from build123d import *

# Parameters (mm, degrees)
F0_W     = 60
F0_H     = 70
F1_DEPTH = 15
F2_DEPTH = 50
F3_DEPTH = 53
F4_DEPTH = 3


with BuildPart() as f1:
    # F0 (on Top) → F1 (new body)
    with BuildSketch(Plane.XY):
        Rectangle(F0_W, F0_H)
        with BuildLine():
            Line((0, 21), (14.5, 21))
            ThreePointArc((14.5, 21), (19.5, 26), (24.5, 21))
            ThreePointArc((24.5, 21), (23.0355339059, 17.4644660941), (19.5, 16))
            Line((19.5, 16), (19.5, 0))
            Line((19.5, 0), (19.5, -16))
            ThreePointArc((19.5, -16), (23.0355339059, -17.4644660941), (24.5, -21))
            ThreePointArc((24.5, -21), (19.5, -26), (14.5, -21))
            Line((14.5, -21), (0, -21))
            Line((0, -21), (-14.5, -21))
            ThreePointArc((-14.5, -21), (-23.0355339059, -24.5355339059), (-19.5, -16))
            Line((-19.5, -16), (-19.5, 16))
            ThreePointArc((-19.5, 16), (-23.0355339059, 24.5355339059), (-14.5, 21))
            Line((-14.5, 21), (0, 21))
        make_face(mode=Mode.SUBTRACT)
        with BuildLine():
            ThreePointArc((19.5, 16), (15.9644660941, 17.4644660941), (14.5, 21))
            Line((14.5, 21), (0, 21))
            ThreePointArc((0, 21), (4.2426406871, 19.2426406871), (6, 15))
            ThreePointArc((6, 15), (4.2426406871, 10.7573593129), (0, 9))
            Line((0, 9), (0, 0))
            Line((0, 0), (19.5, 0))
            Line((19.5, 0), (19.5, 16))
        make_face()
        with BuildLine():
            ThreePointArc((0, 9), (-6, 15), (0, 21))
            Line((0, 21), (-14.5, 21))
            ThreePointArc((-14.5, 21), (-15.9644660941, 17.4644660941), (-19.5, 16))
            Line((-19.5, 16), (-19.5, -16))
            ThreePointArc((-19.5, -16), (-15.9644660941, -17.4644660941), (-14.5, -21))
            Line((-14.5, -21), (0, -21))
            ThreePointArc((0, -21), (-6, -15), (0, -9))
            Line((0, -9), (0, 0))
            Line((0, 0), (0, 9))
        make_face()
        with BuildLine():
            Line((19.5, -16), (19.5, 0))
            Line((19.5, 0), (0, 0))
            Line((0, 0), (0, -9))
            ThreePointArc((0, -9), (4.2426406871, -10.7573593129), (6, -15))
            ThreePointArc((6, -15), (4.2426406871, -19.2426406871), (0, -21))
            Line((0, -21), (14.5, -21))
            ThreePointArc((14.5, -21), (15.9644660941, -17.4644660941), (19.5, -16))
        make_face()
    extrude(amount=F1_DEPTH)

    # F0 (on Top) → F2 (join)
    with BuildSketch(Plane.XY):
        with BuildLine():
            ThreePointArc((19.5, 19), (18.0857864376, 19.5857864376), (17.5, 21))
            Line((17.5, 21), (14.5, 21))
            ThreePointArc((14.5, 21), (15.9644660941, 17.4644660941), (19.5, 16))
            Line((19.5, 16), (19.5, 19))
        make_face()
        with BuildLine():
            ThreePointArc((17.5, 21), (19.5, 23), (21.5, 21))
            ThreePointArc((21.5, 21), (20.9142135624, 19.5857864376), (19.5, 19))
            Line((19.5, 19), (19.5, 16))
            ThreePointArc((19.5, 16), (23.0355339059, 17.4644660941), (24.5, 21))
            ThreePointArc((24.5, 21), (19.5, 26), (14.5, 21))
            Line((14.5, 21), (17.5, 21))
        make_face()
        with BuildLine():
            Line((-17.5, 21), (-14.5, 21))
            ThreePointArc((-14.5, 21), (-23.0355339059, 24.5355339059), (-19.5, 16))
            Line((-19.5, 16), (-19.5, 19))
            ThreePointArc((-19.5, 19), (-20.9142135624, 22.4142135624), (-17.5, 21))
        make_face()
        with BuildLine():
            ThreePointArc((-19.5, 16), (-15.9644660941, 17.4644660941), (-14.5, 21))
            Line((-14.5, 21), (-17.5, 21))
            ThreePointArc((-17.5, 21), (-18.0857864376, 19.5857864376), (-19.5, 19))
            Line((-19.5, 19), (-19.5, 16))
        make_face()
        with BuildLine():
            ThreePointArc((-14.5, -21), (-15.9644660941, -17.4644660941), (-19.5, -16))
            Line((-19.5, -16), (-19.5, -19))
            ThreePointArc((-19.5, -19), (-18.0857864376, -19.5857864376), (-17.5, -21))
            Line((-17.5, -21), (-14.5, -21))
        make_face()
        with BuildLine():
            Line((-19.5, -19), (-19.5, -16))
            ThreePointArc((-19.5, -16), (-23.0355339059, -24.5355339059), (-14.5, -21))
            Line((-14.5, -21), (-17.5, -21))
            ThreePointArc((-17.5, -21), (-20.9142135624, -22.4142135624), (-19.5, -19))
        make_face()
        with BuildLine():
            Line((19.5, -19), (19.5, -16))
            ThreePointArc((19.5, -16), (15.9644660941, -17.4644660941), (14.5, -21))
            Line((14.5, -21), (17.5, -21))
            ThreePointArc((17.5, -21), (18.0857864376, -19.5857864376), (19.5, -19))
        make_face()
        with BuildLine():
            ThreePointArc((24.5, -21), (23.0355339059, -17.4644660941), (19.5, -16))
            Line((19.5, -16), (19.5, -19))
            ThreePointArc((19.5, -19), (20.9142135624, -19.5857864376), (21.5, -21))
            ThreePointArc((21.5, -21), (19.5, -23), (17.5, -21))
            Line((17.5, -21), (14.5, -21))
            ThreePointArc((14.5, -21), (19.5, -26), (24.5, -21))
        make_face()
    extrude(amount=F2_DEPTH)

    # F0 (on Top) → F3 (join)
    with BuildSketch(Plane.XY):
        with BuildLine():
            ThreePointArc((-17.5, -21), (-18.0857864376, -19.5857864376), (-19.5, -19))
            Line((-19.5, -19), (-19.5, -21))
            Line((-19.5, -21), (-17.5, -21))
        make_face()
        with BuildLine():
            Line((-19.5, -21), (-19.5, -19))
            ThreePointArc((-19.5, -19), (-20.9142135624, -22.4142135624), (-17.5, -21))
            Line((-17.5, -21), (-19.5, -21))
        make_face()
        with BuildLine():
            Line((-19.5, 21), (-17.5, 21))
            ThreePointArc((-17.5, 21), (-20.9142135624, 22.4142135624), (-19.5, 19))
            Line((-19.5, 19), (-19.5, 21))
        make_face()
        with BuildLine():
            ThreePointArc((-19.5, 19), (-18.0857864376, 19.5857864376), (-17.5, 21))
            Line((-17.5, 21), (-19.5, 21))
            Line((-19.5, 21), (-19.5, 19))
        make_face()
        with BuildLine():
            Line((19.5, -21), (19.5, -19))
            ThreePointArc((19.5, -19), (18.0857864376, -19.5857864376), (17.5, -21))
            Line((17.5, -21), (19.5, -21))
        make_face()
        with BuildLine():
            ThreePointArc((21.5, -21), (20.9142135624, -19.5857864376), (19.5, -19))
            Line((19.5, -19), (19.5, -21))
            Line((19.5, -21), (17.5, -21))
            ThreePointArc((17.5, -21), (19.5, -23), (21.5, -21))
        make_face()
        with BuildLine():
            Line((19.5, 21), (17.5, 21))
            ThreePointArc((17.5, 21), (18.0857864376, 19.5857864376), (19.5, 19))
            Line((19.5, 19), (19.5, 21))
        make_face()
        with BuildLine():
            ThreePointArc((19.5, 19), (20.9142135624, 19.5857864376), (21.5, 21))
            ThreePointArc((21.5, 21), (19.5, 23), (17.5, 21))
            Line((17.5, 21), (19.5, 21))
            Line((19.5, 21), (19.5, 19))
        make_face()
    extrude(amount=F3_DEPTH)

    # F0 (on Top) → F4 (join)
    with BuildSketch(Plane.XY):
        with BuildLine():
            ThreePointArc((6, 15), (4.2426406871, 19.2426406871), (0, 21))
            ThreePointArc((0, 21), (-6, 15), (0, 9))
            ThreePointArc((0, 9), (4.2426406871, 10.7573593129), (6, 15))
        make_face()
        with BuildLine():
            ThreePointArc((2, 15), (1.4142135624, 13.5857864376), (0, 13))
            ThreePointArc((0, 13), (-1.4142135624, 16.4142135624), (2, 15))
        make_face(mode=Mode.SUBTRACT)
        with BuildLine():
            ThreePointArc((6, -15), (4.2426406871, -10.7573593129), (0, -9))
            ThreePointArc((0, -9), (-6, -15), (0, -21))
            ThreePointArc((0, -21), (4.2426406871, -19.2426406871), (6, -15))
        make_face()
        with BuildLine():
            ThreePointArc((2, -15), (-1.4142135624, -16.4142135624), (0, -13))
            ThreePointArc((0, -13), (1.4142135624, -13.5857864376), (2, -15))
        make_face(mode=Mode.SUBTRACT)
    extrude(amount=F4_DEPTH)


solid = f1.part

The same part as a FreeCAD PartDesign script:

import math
import FreeCAD as App
import Part
import Sketcher
from FreeCAD import Vector


def add_polygon(sketch, points):
    """Adds a closed chain of lines whose ends are joined by coincident constraints."""
    first, n = sketch.GeometryCount, len(points)
    for a, b in zip(points, points[1:] + points[:1]):
        sketch.addGeometry(Part.LineSegment(App.Vector(*a, 0), App.Vector(*b, 0)), False)
    for i in range(n):
        sketch.addConstraint(Sketcher.Constraint("Coincident", first + i, 2, first + (i + 1) % n, 1))

doc = App.newDocument("Part")
body = doc.addObject("PartDesign::Body", "Body")

# Sketch on XY plane
sketch1 = body.newObject("Sketcher::SketchObject", "Sketch")
sketch1.AttachmentSupport = (doc.getObject("XY_Plane"), [""])
sketch1.MapMode = "FlatFace"
add_polygon(sketch1, [(-30, 35), (-30, -35), (30, -35), (30, 35)])  # lines 0-3
sketch1.addGeometry(Part.ArcOfCircle(Part.Circle(Vector(0, 15, 0), Vector(0, 0, 1), 6), math.radians(0), math.radians(90)), False)  # 4
sketch1.addGeometry(Part.ArcOfCircle(Part.Circle(Vector(0, 15, 0), Vector(0, 0, 1), 6), math.radians(-90), math.radians(0)), False)  # 5
sketch1.addGeometry(Part.ArcOfCircle(Part.Circle(Vector(0, 15, 0), Vector(0, 0, 1), 6), math.radians(90), math.radians(270)), False)  # 6
sketch1.addGeometry(Part.ArcOfCircle(Part.Circle(Vector(20, -21, 0), Vector(0, 0, 1), 5), math.radians(0), math.radians(90)), False)  # 7
sketch1.addGeometry(Part.ArcOfCircle(Part.Circle(Vector(20, -21, 0), Vector(0, 0, 1), 5), math.radians(180), math.radians(360)), False)  # 8
sketch1.addGeometry(Part.ArcOfCircle(Part.Circle(Vector(20, -21, 0), Vector(0, 0, 1), 5), math.radians(90), math.radians(180)), False)  # 9
sketch1.addGeometry(Part.ArcOfCircle(Part.Circle(Vector(0, -15, 0), Vector(0, 0, 1), 6), math.radians(90), math.radians(270)), False)  # 10
sketch1.addGeometry(Part.ArcOfCircle(Part.Circle(Vector(0, -15, 0), Vector(0, 0, 1), 6), math.radians(0), math.radians(90)), False)  # 11
sketch1.addGeometry(Part.ArcOfCircle(Part.Circle(Vector(0, -15, 0), Vector(0, 0, 1), 6), math.radians(-90), math.radians(0)), False)  # 12
sketch1.addGeometry(Part.ArcOfCircle(Part.Circle(Vector(-20, -21, 0), Vector(0, 0, 1), 5), math.radians(90), math.radians(360)), False)  # 13
sketch1.addGeometry(Part.ArcOfCircle(Part.Circle(Vector(-20, -21, 0), Vector(0, 0, 1), 5), math.radians(0), math.radians(90)), False)  # 14
sketch1.addGeometry(Part.ArcOfCircle(Part.Circle(Vector(-20, 21, 0), Vector(0, 0, 1), 5), math.radians(0), math.radians(270)), False)  # 15
sketch1.addGeometry(Part.ArcOfCircle(Part.Circle(Vector(-20, 21, 0), Vector(0, 0, 1), 5), math.radians(-90), math.radians(0)), False)  # 16
sketch1.addGeometry(Part.ArcOfCircle(Part.Circle(Vector(20, 21, 0), Vector(0, 0, 1), 5), math.radians(-90), math.radians(0)), False)  # 17
sketch1.addGeometry(Part.ArcOfCircle(Part.Circle(Vector(20, 21, 0), Vector(0, 0, 1), 5), math.radians(180), math.radians(270)), False)  # 18
sketch1.addGeometry(Part.ArcOfCircle(Part.Circle(Vector(20, 21, 0), Vector(0, 0, 1), 5), math.radians(0), math.radians(180)), False)  # 19
sketch1.addConstraint([
    Sketcher.Constraint("Tangent", 4, 1, 5, 2),
    Sketcher.Constraint("Tangent", 5, 1, 6, 2),
    Sketcher.Constraint("Tangent", 6, 1, 4, 2),
    Sketcher.Constraint("Tangent", 7, 1, 8, 2),
    Sketcher.Constraint("Tangent", 8, 1, 9, 2),
    Sketcher.Constraint("Tangent", 9, 1, 7, 2),
    Sketcher.Constraint("Tangent", 10, 1, 11, 2),
    Sketcher.Constraint("Tangent", 11, 1, 12, 2),
    Sketcher.Constraint("Tangent", 12, 1, 10, 2),
    Sketcher.Constraint("Tangent", 13, 1, 14, 2),
    Sketcher.Constraint("Coincident", 14, 1, 13, 2),
    Sketcher.Constraint("Tangent", 15, 1, 16, 2),
    Sketcher.Constraint("Coincident", 16, 1, 15, 2),
    Sketcher.Constraint("Tangent", 17, 1, 18, 2),
    Sketcher.Constraint("Tangent", 18, 1, 19, 2),
    Sketcher.Constraint("Tangent", 19, 1, 17, 2),
    Sketcher.Constraint("Vertical", 0),
    Sketcher.Constraint("Horizontal", 1),
    Sketcher.Constraint("Vertical", 2),
    Sketcher.Constraint("Horizontal", 3),
    Sketcher.Constraint("Equal", 6, 10),
    Sketcher.Constraint("Equal", 9, 13),
    Sketcher.Constraint("Equal", 14, 15),
    Sketcher.Constraint("Equal", 16, 17),
    Sketcher.Constraint("Symmetric", 4, 3, 10, 3, -1, 1),
    Sketcher.Constraint("Symmetric", 7, 3, 15, 3, -1, 1),
    Sketcher.Constraint("Symmetric", 13, 3, 17, 3, -1, 1),
    Sketcher.Constraint("Symmetric", 0, 2, 2, 2, -1, 1),
    Sketcher.Constraint("Symmetric", 7, 3, 13, 3, -2),
    Sketcher.Constraint("Symmetric", 4, 1, 11, 1, -1),
    Sketcher.Constraint("PointOnObject", 5, 1, -2),
    Sketcher.Constraint("PointOnObject", 6, 1, -2),
    Sketcher.Constraint("PointOnObject", 10, 1, -2),
    Sketcher.Constraint("PointOnObject", 12, 1, -2),
    Sketcher.Constraint("Horizontal", 6, 3, 4, 1),
    Sketcher.Constraint("Horizontal", 19, 3, 6, 1),
    Sketcher.Constraint("Horizontal", 14, 3, 7, 1),
    Sketcher.Constraint("Horizontal", 7, 1, 8, 1),
    Sketcher.Constraint("Horizontal", 12, 1, 14, 1),
    Sketcher.Constraint("Horizontal", 6, 1, 15, 1),
    Sketcher.Constraint("Horizontal", 15, 1, 18, 1),
    Sketcher.Constraint("Horizontal", 18, 1, 19, 1),
    Sketcher.Constraint("Vertical", 19, 3, 9, 1),
    Sketcher.Constraint("Vertical", 16, 3, 13, 1),
    Sketcher.Constraint("Vertical", 13, 1, 16, 1),
    Sketcher.Constraint("Vertical", 9, 1, 17, 1),
    Sketcher.Constraint("Radius", 4, 6.0),
    Sketcher.Constraint("Radius", 7, 5.0),
    Sketcher.Constraint("DistanceX", 1, 1, 1, 2, 60.0),
    Sketcher.Constraint("DistanceY", 0, 2, 0, 1, 70.0),
    Sketcher.Constraint("DistanceY", -1, 1, 4, 3, 15.0),
    Sketcher.Constraint("DistanceX", 13, 3, 7, 3, 39.0),
])
pad1 = body.newObject("PartDesign::Pad", "Pad")
pad1.Profile = sketch1
pad1.Length = 15

# Sketch on XY plane
sketch2 = body.newObject("Sketcher::SketchObject", "Sketch001")
sketch2.AttachmentSupport = (doc.getObject("XY_Plane"), [""])
sketch2.MapMode = "FlatFace"
sketch2.addGeometry([
    Part.ArcOfCircle(Part.Circle(Vector(19.5, 21, 0), Vector(0, 0, 1), 5), math.radians(180), math.radians(270)),  # 0
    Part.ArcOfCircle(Part.Circle(Vector(19.5, 21, 0), Vector(0, 0, 1), 5), math.radians(-90), math.radians(0)),  # 1
    Part.ArcOfCircle(Part.Circle(Vector(19.5, 21, 0), Vector(0, 0, 1), 5), math.radians(0), math.radians(180)),  # 2
    Part.ArcOfCircle(Part.Circle(Vector(19.5, 21, 0), Vector(0, 0, 1), 2), math.radians(180), math.radians(270)),  # 3
    Part.ArcOfCircle(Part.Circle(Vector(19.5, 21, 0), Vector(0, 0, 1), 2), math.radians(0), math.radians(180)),  # 4
    Part.ArcOfCircle(Part.Circle(Vector(19.5, 21, 0), Vector(0, 0, 1), 2), math.radians(-90), math.radians(0)),  # 5
    Part.ArcOfCircle(Part.Circle(Vector(-19.5, 21, 0), Vector(0, 0, 1), 5), math.radians(0), math.radians(270)),  # 6
    Part.ArcOfCircle(Part.Circle(Vector(-19.5, 21, 0), Vector(0, 0, 1), 5), math.radians(-90), math.radians(0)),  # 7
    Part.ArcOfCircle(Part.Circle(Vector(-19.5, 21, 0), Vector(0, 0, 1), 2), math.radians(0), math.radians(270)),  # 8
    Part.ArcOfCircle(Part.Circle(Vector(-19.5, 21, 0), Vector(0, 0, 1), 2), math.radians(-90), math.radians(0)),  # 9
    Part.ArcOfCircle(Part.Circle(Vector(-19.5, -21, 0), Vector(0, 0, 1), 5), math.radians(0), math.radians(90)),  # 10
    Part.ArcOfCircle(Part.Circle(Vector(-19.5, -21, 0), Vector(0, 0, 1), 5), math.radians(90), math.radians(360)),  # 11
    Part.ArcOfCircle(Part.Circle(Vector(-19.5, -21, 0), Vector(0, 0, 1), 2), math.radians(0), math.radians(90)),  # 12
    Part.ArcOfCircle(Part.Circle(Vector(-19.5, -21, 0), Vector(0, 0, 1), 2), math.radians(90), math.radians(360)),  # 13
    Part.ArcOfCircle(Part.Circle(Vector(19.5, -21, 0), Vector(0, 0, 1), 5), math.radians(90), math.radians(180)),  # 14
    Part.ArcOfCircle(Part.Circle(Vector(19.5, -21, 0), Vector(0, 0, 1), 5), math.radians(180), math.radians(360)),  # 15
    Part.ArcOfCircle(Part.Circle(Vector(19.5, -21, 0), Vector(0, 0, 1), 5), math.radians(0), math.radians(90)),  # 16
    Part.ArcOfCircle(Part.Circle(Vector(19.5, -21, 0), Vector(0, 0, 1), 2), math.radians(90), math.radians(180)),  # 17
    Part.ArcOfCircle(Part.Circle(Vector(19.5, -21, 0), Vector(0, 0, 1), 2), math.radians(0), math.radians(90)),  # 18
    Part.ArcOfCircle(Part.Circle(Vector(19.5, -21, 0), Vector(0, 0, 1), 2), math.radians(180), math.radians(360)),  # 19
], False)
sketch2.addConstraint([
    Sketcher.Constraint("Tangent", 0, 2, 1, 1),
    Sketcher.Constraint("Tangent", 1, 2, 2, 1),
    Sketcher.Constraint("Tangent", 2, 2, 0, 1),
    Sketcher.Constraint("Tangent", 3, 1, 4, 2),
    Sketcher.Constraint("Tangent", 4, 1, 5, 2),
    Sketcher.Constraint("Tangent", 5, 1, 3, 2),
    Sketcher.Constraint("Tangent", 6, 1, 7, 2),
    Sketcher.Constraint("Coincident", 7, 1, 6, 2),
    Sketcher.Constraint("Tangent", 8, 1, 9, 2),
    Sketcher.Constraint("Coincident", 9, 1, 8, 2),
    Sketcher.Constraint("Tangent", 10, 1, 11, 2),
    Sketcher.Constraint("Coincident", 11, 1, 10, 2),
    Sketcher.Constraint("Tangent", 12, 1, 13, 2),
    Sketcher.Constraint("Coincident", 13, 1, 12, 2),
    Sketcher.Constraint("Tangent", 14, 2, 15, 1),
    Sketcher.Constraint("Tangent", 15, 2, 16, 1),
    Sketcher.Constraint("Tangent", 16, 2, 14, 1),
    Sketcher.Constraint("Tangent", 17, 1, 18, 2),
    Sketcher.Constraint("Tangent", 18, 1, 19, 2),
    Sketcher.Constraint("Tangent", 19, 1, 17, 2),
    Sketcher.Constraint("Coincident", 3, 3, 0, 3),
    Sketcher.Constraint("Coincident", 8, 3, 6, 3),
    Sketcher.Constraint("Coincident", 12, 3, 10, 3),
    Sketcher.Constraint("Coincident", 17, 3, 14, 3),
    Sketcher.Constraint("Equal", 2, 6),
    Sketcher.Constraint("Equal", 5, 8),
    Sketcher.Constraint("Equal", 7, 10),
    Sketcher.Constraint("Equal", 9, 12),
    Sketcher.Constraint("Equal", 11, 14),
    Sketcher.Constraint("Equal", 13, 17),
    Sketcher.Constraint("Symmetric", 0, 3, 10, 3, -1, 1),
    Sketcher.Constraint("Symmetric", 6, 3, 14, 3, -1, 1),
    Sketcher.Constraint("Symmetric", 0, 3, 6, 3, -2),
    Sketcher.Constraint("Horizontal", 9, 3, 1, 2),
    Sketcher.Constraint("Horizontal", 1, 2, 2, 2),
    Sketcher.Constraint("Horizontal", 2, 2, 3, 1),
    Sketcher.Constraint("Horizontal", 3, 1, 4, 1),
    Sketcher.Constraint("Horizontal", 4, 1, 6, 1),
    Sketcher.Constraint("Horizontal", 6, 1, 8, 1),
    Sketcher.Constraint("Horizontal", 19, 3, 10, 1),
    Sketcher.Constraint("Horizontal", 10, 1, 12, 1),
    Sketcher.Constraint("Horizontal", 12, 1, 14, 2),
    Sketcher.Constraint("Horizontal", 14, 2, 15, 2),
    Sketcher.Constraint("Horizontal", 15, 2, 18, 1),
    Sketcher.Constraint("Horizontal", 18, 1, 19, 1),
    Sketcher.Constraint("Vertical", 19, 3, 0, 2),
    Sketcher.Constraint("Vertical", 0, 2, 5, 1),
    Sketcher.Constraint("Vertical", 13, 3, 7, 1),
    Sketcher.Constraint("Vertical", 7, 1, 9, 1),
    Sketcher.Constraint("Vertical", 9, 1, 11, 1),
    Sketcher.Constraint("Vertical", 11, 1, 13, 1),
    Sketcher.Constraint("Vertical", 5, 1, 16, 2),
    Sketcher.Constraint("Vertical", 16, 2, 17, 1),
    Sketcher.Constraint("Radius", 0, 5.0),
    Sketcher.Constraint("Radius", 3, 2.0),
    Sketcher.Constraint("DistanceY", -1, 1, 0, 3, 21.0),
    Sketcher.Constraint("DistanceX", 6, 3, 0, 3, 39.0),
])
pad2 = body.newObject("PartDesign::Pad", "Pad001")
pad2.Profile = sketch2
pad2.Length = 50

# Sketch on XY plane
sketch3 = body.newObject("Sketcher::SketchObject", "Sketch002")
sketch3.AttachmentSupport = (doc.getObject("XY_Plane"), [""])
sketch3.MapMode = "FlatFace"
sketch3.addGeometry([
    Part.ArcOfCircle(Part.Circle(Vector(-19.5, -21, 0), Vector(0, 0, 1), 2), math.radians(0), math.radians(90)),  # 0
    Part.ArcOfCircle(Part.Circle(Vector(-19.5, -21, 0), Vector(0, 0, 1), 2), math.radians(90), math.radians(360)),  # 1
    Part.ArcOfCircle(Part.Circle(Vector(-19.5, 21, 0), Vector(0, 0, 1), 2), math.radians(0), math.radians(270)),  # 2
    Part.ArcOfCircle(Part.Circle(Vector(-19.5, 21, 0), Vector(0, 0, 1), 2), math.radians(-90), math.radians(0)),  # 3
    Part.ArcOfCircle(Part.Circle(Vector(19.5, -21, 0), Vector(0, 0, 1), 2), math.radians(90), math.radians(180)),  # 4
    Part.ArcOfCircle(Part.Circle(Vector(19.5, -21, 0), Vector(0, 0, 1), 2), math.radians(180), math.radians(360)),  # 5
    Part.ArcOfCircle(Part.Circle(Vector(19.5, -21, 0), Vector(0, 0, 1), 2), math.radians(0), math.radians(90)),  # 6
    Part.ArcOfCircle(Part.Circle(Vector(19.5, 21, 0), Vector(0, 0, 1), 2), math.radians(180), math.radians(270)),  # 7
    Part.ArcOfCircle(Part.Circle(Vector(19.5, 21, 0), Vector(0, 0, 1), 2), math.radians(-90), math.radians(0)),  # 8
    Part.ArcOfCircle(Part.Circle(Vector(19.5, 21, 0), Vector(0, 0, 1), 2), math.radians(0), math.radians(180)),  # 9
], False)
sketch3.addConstraint([
    Sketcher.Constraint("Tangent", 0, 1, 1, 2),
    Sketcher.Constraint("Coincident", 1, 1, 0, 2),
    Sketcher.Constraint("Tangent", 2, 1, 3, 2),
    Sketcher.Constraint("Coincident", 3, 1, 2, 2),
    Sketcher.Constraint("Tangent", 4, 2, 5, 1),
    Sketcher.Constraint("Tangent", 5, 2, 6, 1),
    Sketcher.Constraint("Tangent", 6, 2, 4, 1),
    Sketcher.Constraint("Tangent", 7, 2, 8, 1),
    Sketcher.Constraint("Tangent", 8, 2, 9, 1),
    Sketcher.Constraint("Tangent", 9, 2, 7, 1),
    Sketcher.Constraint("Equal", 1, 2),
    Sketcher.Constraint("Equal", 3, 4),
    Sketcher.Constraint("Equal", 6, 7),
    Sketcher.Constraint("Symmetric", 2, 3, 4, 3, -1, 1),
    Sketcher.Constraint("Symmetric", 0, 3, 7, 3, -1, 1),
    Sketcher.Constraint("Symmetric", 0, 3, 4, 3, -2),
    Sketcher.Constraint("Horizontal", 6, 3, 0, 1),
    Sketcher.Constraint("Horizontal", 9, 3, 2, 1),
    Sketcher.Constraint("Horizontal", 0, 1, 4, 2),
    Sketcher.Constraint("Horizontal", 4, 2, 5, 2),
    Sketcher.Constraint("Horizontal", 2, 1, 8, 2),
    Sketcher.Constraint("Horizontal", 8, 2, 9, 2),
    Sketcher.Constraint("Vertical", 3, 3, 1, 1),
    Sketcher.Constraint("Vertical", 1, 1, 3, 1),
    Sketcher.Constraint("Vertical", 9, 3, 6, 2),
    Sketcher.Constraint("Vertical", 6, 2, 7, 2),
    Sketcher.Constraint("Radius", 0, 2.0),
    Sketcher.Constraint("DistanceY", 0, 3, -1, 1, 21.0),
    Sketcher.Constraint("DistanceX", 0, 3, 4, 3, 39.0),
])
pad3 = body.newObject("PartDesign::Pad", "Pad002")
pad3.Profile = sketch3
pad3.Length = 53

# Sketch on XY plane
sketch4 = body.newObject("Sketcher::SketchObject", "Sketch003")
sketch4.AttachmentSupport = (doc.getObject("XY_Plane"), [""])
sketch4.MapMode = "FlatFace"
sketch4.addGeometry([
    Part.ArcOfCircle(Part.Circle(Vector(0, 15, 0), Vector(0, 0, 1), 6), math.radians(0), math.radians(90)),  # 0
    Part.ArcOfCircle(Part.Circle(Vector(0, 15, 0), Vector(0, 0, 1), 6), math.radians(90), math.radians(270)),  # 1
    Part.ArcOfCircle(Part.Circle(Vector(0, 15, 0), Vector(0, 0, 1), 6), math.radians(-90), math.radians(0)),  # 2
    Part.ArcOfCircle(Part.Circle(Vector(0, 15, 0), Vector(0, 0, 1), 2), math.radians(0), math.radians(270)),  # 3
    Part.ArcOfCircle(Part.Circle(Vector(0, 15, 0), Vector(0, 0, 1), 2), math.radians(-90), math.radians(0)),  # 4
    Part.ArcOfCircle(Part.Circle(Vector(0, -15, 0), Vector(0, 0, 1), 6), math.radians(0), math.radians(90)),  # 5
    Part.ArcOfCircle(Part.Circle(Vector(0, -15, 0), Vector(0, 0, 1), 6), math.radians(90), math.radians(270)),  # 6
    Part.ArcOfCircle(Part.Circle(Vector(0, -15, 0), Vector(0, 0, 1), 6), math.radians(-90), math.radians(0)),  # 7
    Part.ArcOfCircle(Part.Circle(Vector(0, -15, 0), Vector(0, 0, 1), 2), math.radians(0), math.radians(90)),  # 8
    Part.ArcOfCircle(Part.Circle(Vector(0, -15, 0), Vector(0, 0, 1), 2), math.radians(90), math.radians(360)),  # 9
], False)
sketch4.addConstraint([
    Sketcher.Constraint("Tangent", 0, 2, 1, 1),
    Sketcher.Constraint("Tangent", 1, 2, 2, 1),
    Sketcher.Constraint("Tangent", 2, 2, 0, 1),
    Sketcher.Constraint("Tangent", 3, 1, 4, 2),
    Sketcher.Constraint("Coincident", 4, 1, 3, 2),
    Sketcher.Constraint("Tangent", 5, 2, 6, 1),
    Sketcher.Constraint("Tangent", 6, 2, 7, 1),
    Sketcher.Constraint("Tangent", 7, 2, 5, 1),
    Sketcher.Constraint("Tangent", 8, 1, 9, 2),
    Sketcher.Constraint("Coincident", 9, 1, 8, 2),
    Sketcher.Constraint("Coincident", 3, 3, 0, 3),
    Sketcher.Constraint("Coincident", 8, 3, 5, 3),
    Sketcher.Constraint("Equal", 2, 5),
    Sketcher.Constraint("Equal", 4, 8),
    Sketcher.Constraint("Symmetric", 0, 3, 5, 3, -1, 1),
    Sketcher.Constraint("Symmetric", 2, 2, 7, 2, -1),
    Sketcher.Constraint("PointOnObject", 0, 2, -2),
    Sketcher.Constraint("PointOnObject", 1, 2, -2),
    Sketcher.Constraint("PointOnObject", 4, 1, -2),
    Sketcher.Constraint("PointOnObject", 5, 2, -2),
    Sketcher.Constraint("PointOnObject", 6, 2, -2),
    Sketcher.Constraint("PointOnObject", 9, 1, -2),
    Sketcher.Constraint("Horizontal", 4, 3, 2, 2),
    Sketcher.Constraint("Horizontal", 2, 2, 3, 1),
    Sketcher.Constraint("Horizontal", 7, 2, 8, 1),
    Sketcher.Constraint("Radius", 0, 6.0),
    Sketcher.Constraint("Radius", 3, 2.0),
    Sketcher.Constraint("DistanceY", -1, 1, 0, 3, 15.0),
])
pad4 = body.newObject("PartDesign::Pad", "Pad003")
pad4.Profile = sketch4
pad4.Length = 3

doc.recompute()
